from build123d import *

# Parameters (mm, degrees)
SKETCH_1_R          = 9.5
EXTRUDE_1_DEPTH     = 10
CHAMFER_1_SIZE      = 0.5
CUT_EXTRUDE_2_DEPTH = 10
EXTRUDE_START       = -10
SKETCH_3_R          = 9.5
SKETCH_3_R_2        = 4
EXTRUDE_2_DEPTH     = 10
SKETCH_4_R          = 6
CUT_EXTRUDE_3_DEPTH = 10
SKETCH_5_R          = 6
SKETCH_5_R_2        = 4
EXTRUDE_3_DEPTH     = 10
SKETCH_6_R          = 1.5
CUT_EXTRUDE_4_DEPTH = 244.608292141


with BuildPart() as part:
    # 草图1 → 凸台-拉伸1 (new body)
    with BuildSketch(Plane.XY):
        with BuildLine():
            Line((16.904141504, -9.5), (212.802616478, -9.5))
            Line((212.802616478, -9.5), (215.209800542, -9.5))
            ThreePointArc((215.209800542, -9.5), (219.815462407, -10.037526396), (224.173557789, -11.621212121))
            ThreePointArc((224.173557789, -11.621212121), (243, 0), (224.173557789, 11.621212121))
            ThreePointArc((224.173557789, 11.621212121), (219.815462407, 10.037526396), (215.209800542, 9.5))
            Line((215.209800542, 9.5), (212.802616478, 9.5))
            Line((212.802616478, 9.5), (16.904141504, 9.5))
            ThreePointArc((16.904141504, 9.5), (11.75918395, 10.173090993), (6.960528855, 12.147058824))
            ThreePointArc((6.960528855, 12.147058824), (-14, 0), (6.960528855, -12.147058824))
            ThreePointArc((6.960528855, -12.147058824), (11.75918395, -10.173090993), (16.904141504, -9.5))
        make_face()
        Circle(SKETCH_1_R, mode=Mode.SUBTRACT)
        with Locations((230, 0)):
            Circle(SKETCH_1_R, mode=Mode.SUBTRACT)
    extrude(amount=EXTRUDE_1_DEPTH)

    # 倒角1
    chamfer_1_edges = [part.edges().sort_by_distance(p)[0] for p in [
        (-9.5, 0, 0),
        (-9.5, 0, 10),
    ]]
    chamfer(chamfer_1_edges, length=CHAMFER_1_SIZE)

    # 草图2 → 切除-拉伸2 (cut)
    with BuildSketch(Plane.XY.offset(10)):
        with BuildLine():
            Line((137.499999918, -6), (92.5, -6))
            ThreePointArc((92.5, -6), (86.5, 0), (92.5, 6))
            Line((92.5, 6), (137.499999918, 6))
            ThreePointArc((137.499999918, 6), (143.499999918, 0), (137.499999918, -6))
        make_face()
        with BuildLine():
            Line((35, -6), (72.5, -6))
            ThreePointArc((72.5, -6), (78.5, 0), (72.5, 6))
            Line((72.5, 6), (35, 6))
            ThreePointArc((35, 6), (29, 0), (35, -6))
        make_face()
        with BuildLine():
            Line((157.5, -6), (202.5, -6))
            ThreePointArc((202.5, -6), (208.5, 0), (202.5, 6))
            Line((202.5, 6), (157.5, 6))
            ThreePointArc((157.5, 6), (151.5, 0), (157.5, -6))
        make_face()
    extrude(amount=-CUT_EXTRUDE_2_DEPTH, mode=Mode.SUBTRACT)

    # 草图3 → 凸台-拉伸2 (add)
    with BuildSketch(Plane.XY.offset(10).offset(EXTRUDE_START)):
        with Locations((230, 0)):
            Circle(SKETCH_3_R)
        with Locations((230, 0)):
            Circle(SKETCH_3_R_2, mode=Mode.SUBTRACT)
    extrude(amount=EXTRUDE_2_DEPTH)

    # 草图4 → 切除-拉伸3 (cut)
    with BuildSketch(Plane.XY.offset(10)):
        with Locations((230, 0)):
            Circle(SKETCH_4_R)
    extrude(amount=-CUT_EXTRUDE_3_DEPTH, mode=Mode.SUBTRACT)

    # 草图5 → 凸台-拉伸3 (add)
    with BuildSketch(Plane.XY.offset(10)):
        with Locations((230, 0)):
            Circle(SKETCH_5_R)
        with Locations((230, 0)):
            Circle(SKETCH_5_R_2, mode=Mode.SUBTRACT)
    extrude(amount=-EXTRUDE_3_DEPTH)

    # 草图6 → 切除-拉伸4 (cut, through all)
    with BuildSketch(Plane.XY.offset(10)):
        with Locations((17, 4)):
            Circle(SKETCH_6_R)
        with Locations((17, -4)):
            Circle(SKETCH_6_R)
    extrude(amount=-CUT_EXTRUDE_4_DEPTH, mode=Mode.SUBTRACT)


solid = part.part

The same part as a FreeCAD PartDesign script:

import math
import FreeCAD as App
import Part
import Sketcher
from FreeCAD import Vector
Q = App.Units.Quantity


def edges_at(feature, points):
    """Names of the edges that pass closest to the given points."""
    edges = feature.Shape.Edges
    near = lambda p: min(range(len(edges)), key=lambda i: edges[i].distToShape(Part.Vertex(*p))[0])
    return sorted({f"Edge{near(p) + 1}" for p in points})

doc = App.newDocument("Part")
body = doc.addObject("PartDesign::Body", "Body")

sketch1 = doc.addObject("Sketcher::SketchObject", "Sketch")
body.addObject(sketch1)
sketch1.AttachmentSupport = (doc.XY_Plane, [""])
sketch1.MapMode = "FlatFace"
sketch1.addGeometry(Part.LineSegment(Vector(17, -10, 0), Vector(215, -10, 0)), False)
sketch1.addGeometry(Part.ArcOfCircle(Part.Circle(Vector(215, -30, 0), Vector(0, 0, 1), 20), math.radians(63), math.radians(90)), False)
sketch1.addGeometry(Part.ArcOfCircle(Part.Circle(Vector(230, 0, 0), Vector(0, 0, 1), 13), math.radians(-117), math.radians(117)), False)
sketch1.addGeometry(Part.ArcOfCircle(Part.Circle(Vector(215, 30, 0), Vector(0, 0, 1), 20), math.radians(-90), math.radians(-63)), False)
sketch1.addGeometry(Part.LineSegment(Vector(215, 10, 0), Vector(17, 10, 0)), False)
sketch1.addGeometry(Part.ArcOfCircle(Part.Circle(Vector(17, 29, 0), Vector(0, 0, 1), 20), math.radians(-120), math.radians(-90)), False)
sketch1.addGeometry(Part.ArcOfCircle(Part.Circle(Vector(0, 0, 0), Vector(0, 0, 1), 14), math.radians(60), math.radians(300)), False)
sketch1.addGeometry(Part.ArcOfCircle(Part.Circle(Vector(17, -29, 0), Vector(0, 0, 1), 20), math.radians(90), math.radians(120)), False)
sketch1.addGeometry(Part.Circle(Vector(0, 0, 0), Vector(0, 0, 1), 10), False)
sketch1.addGeometry(Part.Circle(Vector(230, 0, 0), Vector(0, 0, 1), 10), False)
sketch1.addConstraint(Sketcher.Constraint("Tangent", 0, 2, 1, 2))
sketch1.addConstraint(Sketcher.Constraint("Tangent", 1, 1, 2, 1))
sketch1.addConstraint(Sketcher.Constraint("Tangent", 2, 2, 3, 2))
sketch1.addConstraint(Sketcher.Constraint("Tangent", 3, 1, 4, 1))
sketch1.addConstraint(Sketcher.Constraint("Tangent", 4, 2, 5, 2))
sketch1.addConstraint(Sketcher.Constraint("Tangent", 5, 1, 6, 1))
sketch1.addConstraint(Sketcher.Constraint("Tangent", 6, 2, 7, 2))
sketch1.addConstraint(Sketcher.Constraint("Tangent", 7, 1, 0, 1))
sketch1.addConstraint(Sketcher.Constraint("Horizontal", 0))
sketch1.addConstraint(Sketcher.Constraint("Horizontal", 4))
sketch1.addConstraint(Sketcher.Constraint("Coincident", 6, 3, -1, 1))
sketch1.addConstraint(Sketcher.Constraint("Coincident", 8, 3, -1, 1))
sketch1.addConstraint(Sketcher.Constraint("Coincident", 9, 3, 2, 3))
sketch1.addConstraint(Sketcher.Constraint("Equal", 1, 3))
sketch1.addConstraint(Sketcher.Constraint("Equal", 3, 5))
sketch1.addConstraint(Sketcher.Constraint("Equal", 5, 7))
sketch1.addConstraint(Sketcher.Constraint("Equal", 8, 9))
sketch1.addConstraint(Sketcher.Constraint("Symmetric", 1, 3, 3, 3, -1))
sketch1.addConstraint(Sketcher.Constraint("Diameter", 8, Q("19 mm")))
sketch1.addConstraint(Sketcher.Constraint("Radius", 1, Q("20 mm")))
sketch1.addConstraint(Sketcher.Constraint("Radius", 2, Q("13 mm")))
sketch1.addConstraint(Sketcher.Constraint("Radius", 6, Q("14 mm")))
sketch1.addConstraint(Sketcher.Constraint("DistanceX", -1, 1, 2, 3, Q("230 mm")))
sketch1.addConstraint(Sketcher.Constraint("DistanceY", 1, 3, 3, 3, Q("59 mm")))
pad1 = doc.addObject("PartDesign::Pad", "Pad")
body.addObject(pad1)
pad1.Profile = sketch1
pad1.Length = 10
doc.recompute()

chamfer = doc.addObject("PartDesign::Chamfer", "Chamfer")
body.addObject(chamfer)
chamfer.Base = (pad1, edges_at(pad1, [(-9.5, 0, 0), (-9.5, 0, 10)]))
chamfer.Size = 0.5

sketch2 = doc.addObject("Sketcher::SketchObject", "Sketch001")
body.addObject(sketch2)
sketch2.AttachmentSupport = (doc.XY_Plane, [""])
sketch2.MapMode = "FlatFace"
sketch2.AttachmentOffset = App.Placement(Vector(0, 0, 10), App.Rotation())
sketch2.addGeometry(Part.LineSegment(Vector(92, -6, 0), Vector(137, -6, 0)), False)
sketch2.addGeometry(Part.ArcOfCircle(Part.Circle(Vector(137, 0, 0), Vector(0, 0, 1), 6), math.radians(-90), math.radians(90)), False)
sketch2.addGeometry(Part.LineSegment(Vector(137, 6, 0), Vector(92, 6, 0)), False)
sketch2.addGeometry(Part.ArcOfCircle(Part.Circle(Vector(92, 0, 0), Vector(0, 0, 1), 6), math.radians(90), math.radians(270)), False)
sketch2.addGeometry(Part.LineSegment(Vector(35, -6, 0), Vector(72, -6, 0)), False)
sketch2.addGeometry(Part.ArcOfCircle(Part.Circle(Vector(72, 0, 0), Vector(0, 0, 1), 6), math.radians(-90), math.radians(90)), False)
sketch2.addGeometry(Part.LineSegment(Vector(72, 6, 0), Vector(35, 6, 0)), False)
sketch2.addGeometry(Part.ArcOfCircle(Part.Circle(Vector(35, 0, 0), Vector(0, 0, 1), 6), math.radians(90), math.radians(270)), False)
sketch2.addGeometry(Part.LineSegment(Vector(158, -6, 0), Vector(202, -6, 0)), False)
sketch2.addGeometry(Part.ArcOfCircle(Part.Circle(Vector(202, 0, 0), Vector(0, 0, 1), 6), math.radians(-90), math.radians(90)), False)
sketch2.addGeometry(Part.LineSegment(Vector(202, 6, 0), Vector(158, 6, 0)), False)
sketch2.addGeometry(Part.ArcOfCircle(Part.Circle(Vector(158, 0, 0), Vector(0, 0, 1), 6), math.radians(90), math.radians(270)), False)
sketch2.addConstraint(Sketcher.Constraint("Tangent", 0, 2, 1, 1))
sketch2.addConstraint(Sketcher.Constraint("Tangent", 1, 2, 2, 1))
sketch2.addConstraint(Sketcher.Constraint("Tangent", 2, 2, 3, 1))
sketch2.addConstraint(Sketcher.Constraint("Tangent", 3, 2, 0, 1))
sketch2.addConstraint(Sketcher.Constraint("Tangent", 4, 2, 5, 1))
sketch2.addConstraint(Sketcher.Constraint("Tangent", 5, 2, 6, 1))
sketch2.addConstraint(Sketcher.Constraint("Tangent", 6, 2, 7, 1))
sketch2.addConstraint(Sketcher.Constraint("Tangent", 7, 2, 4, 1))
sketch2.addConstraint(Sketcher.Constraint("Tangent", 8, 2, 9, 1))
sketch2.addConstraint(Sketcher.Constraint("Tangent", 9, 2, 10, 1))
sketch2.addConstraint(Sketcher.Constraint("Tangent", 10, 2, 11, 1))
sketch2.addConstraint(Sketcher.Constraint("Tangent", 11, 2, 8, 1))
sketch2.addConstraint(Sketcher.Constraint("Horizontal", 0))
sketch2.addConstraint(Sketcher.Constraint("Horizontal", 2))
sketch2.addConstraint(Sketcher.Constraint("Horizontal", 4))
sketch2.addConstraint(Sketcher.Constraint("Horizontal", 6))
sketch2.addConstraint(Sketcher.Constraint("Horizontal", 8))
sketch2.addConstraint(Sketcher.Constraint("Horizontal", 10))
sketch2.addConstraint(Sketcher.Constraint("Equal", 3, 5))
sketch2.addConstraint(Sketcher.Constraint("Equal", 7, 9))
sketch2.addConstraint(Sketcher.Constraint("PointOnObject", 1, 3, -1))
sketch2.addConstraint(Sketcher.Constraint("PointOnObject", 5, 3, -1))
sketch2.addConstraint(Sketcher.Constraint("PointOnObject", 9, 3, -1))
sketch2.addConstraint(Sketcher.Constraint("Equal", 2, 8))
sketch2.addConstraint(Sketcher.Constraint("Radius", 1, Q("6 mm")))
sketch2.addConstraint(Sketcher.Constraint("DistanceX", 0, 1, 0, 2, Q("45 mm")))
sketch2.addConstraint(Sketcher.Constraint("DistanceX", 4, 1, 4, 2, Q("37.5 mm")))
sketch2.addConstraint(Sketcher.Constraint("DistanceX", -1, 1, 7, 3, Q("35 mm")))
sketch2.addConstraint(Sketcher.Constraint("DistanceX", 5, 3, 3, 3, Q("20 mm")))
sketch2.addConstraint(Sketcher.Constraint("DistanceX", 1, 3, 9, 3, Q("65 mm")))
pocket1 = doc.addObject("PartDesign::Pocket", "Pocket")
body.addObject(pocket1)
pocket1.Profile = sketch2
pocket1.Length = 10

sketch3 = doc.addObject("Sketcher::SketchObject", "Sketch002")
body.addObject(sketch3)
sketch3.AttachmentSupport = (doc.XY_Plane, [""])
sketch3.MapMode = "FlatFace"
sketch3.addGeometry(Part.Circle(Vector(230, 0, 0), Vector(0, 0, 1), 9.5), False)
sketch3.addGeometry(Part.Circle(Vector(230, 0, 0), Vector(0, 0, 1), 4), False)
sketch3.addConstraint(Sketcher.Constraint("Coincident", 1, 3, 0, 3))
sketch3.addConstraint(Sketcher.Constraint("PointOnObject", 0, 3, -1))
sketch3.addConstraint(Sketcher.Constraint("Diameter", 0, Q("19 mm")))
sketch3.addConstraint(Sketcher.Constraint("Diameter", 1, Q("8 mm")))
sketch3.addConstraint(Sketcher.Constraint("DistanceX", -1, 1, 0, 3, Q("230 mm")))
pad2 = doc.addObject("PartDesign::Pad", "Pad001")
body.addObject(pad2)
pad2.Profile = sketch3
pad2.Length = 10

sketch4 = doc.addObject("Sketcher::SketchObject", "Sketch003")
body.addObject(sketch4)
sketch4.AttachmentSupport = (doc.XY_Plane, [""])
sketch4.MapMode = "FlatFace"
sketch4.AttachmentOffset = App.Placement(Vector(0, 0, 10), App.Rotation())
sketch4.addGeometry(Part.Circle(Vector(230, 0, 0), Vector(0, 0, 1), 6), False)
sketch4.addConstraint(Sketcher.Constraint("PointOnObject", 0, 3, -1))
sketch4.addConstraint(Sketcher.Constraint("Diameter", 0, Q("12 mm")))
sketch4.addConstraint(Sketcher.Constraint("DistanceX", -1, 1, 0, 3, Q("230 mm")))
pocket2 = doc.addObject("PartDesign::Pocket", "Pocket001")
body.addObject(pocket2)
pocket2.Profile = sketch4
pocket2.Length = 10

sketch5 = doc.addObject("Sketcher::SketchObject", "Sketch004")
body.addObject(sketch5)
sketch5.AttachmentSupport = (doc.XY_Plane, [""])
sketch5.MapMode = "FlatFace"
sketch5.AttachmentOffset = App.Placement(Vector(0, 0, 10), App.Rotation())
sketch5.addGeometry(Part.Circle(Vector(230, 0, 0), Vector(0, 0, 1), 6), False)
sketch5.addGeometry(Part.Circle(Vector(230, 0, 0), Vector(0, 0, 1), 4), False)
sketch5.addConstraint(Sketcher.Constraint("Coincident", 1, 3, 0, 3))
sketch5.addConstraint(Sketcher.Constraint("PointOnObject", 0, 3, -1))
sketch5.addConstraint(Sketcher.Constraint("Diameter", 0, Q("12 mm")))
sketch5.addConstraint(Sketcher.Constraint("Diameter", 1, Q("8 mm")))
sketch5.addConstraint(Sketcher.Constraint("DistanceX", -1, 1, 0, 3, Q("230 mm")))
pad3 = doc.addObject("PartDesign::Pad", "Pad002")
body.addObject(pad3)
pad3.Profile = sketch5
pad3.Length = 10
pad3.Reversed = True

sketch6 = doc.addObject("Sketcher::SketchObject", "Sketch005")
body.addObject(sketch6)
sketch6.AttachmentSupport = (doc.XY_Plane, [""])
sketch6.MapMode = "FlatFace"
sketch6.AttachmentOffset = App.Placement(Vector(0, 0, 10), App.Rotation())
sketch6.addGeometry(Part.Circle(Vector(17, 4, 0), Vector(0, 0, 1), 1.5), False)
sketch6.addGeometry(Part.Circle(Vector(17, -4, 0), Vector(0, 0, 1), 1.5), False)
sketch6.addConstraint(Sketcher.Constraint("Equal", 0, 1))
sketch6.addConstraint(Sketcher.Constraint("Symmetric", 0, 3, 1, 3, -1))
sketch6.addConstraint(Sketcher.Constraint("Diameter", 0, Q("3 mm")))
sketch6.addConstraint(Sketcher.Constraint("DistanceX", -1, 1, 0, 3, Q("17 mm")))
sketch6.addConstraint(Sketcher.Constraint("DistanceY", -1, 1, 0, 3, Q("4 mm")))
pocket3 = doc.addObject("PartDesign::Pocket", "Pocket002")
body.addObject(pocket3)
pocket3.Profile = sketch6
pocket3.Type = "ThroughAll"

doc.recompute()
